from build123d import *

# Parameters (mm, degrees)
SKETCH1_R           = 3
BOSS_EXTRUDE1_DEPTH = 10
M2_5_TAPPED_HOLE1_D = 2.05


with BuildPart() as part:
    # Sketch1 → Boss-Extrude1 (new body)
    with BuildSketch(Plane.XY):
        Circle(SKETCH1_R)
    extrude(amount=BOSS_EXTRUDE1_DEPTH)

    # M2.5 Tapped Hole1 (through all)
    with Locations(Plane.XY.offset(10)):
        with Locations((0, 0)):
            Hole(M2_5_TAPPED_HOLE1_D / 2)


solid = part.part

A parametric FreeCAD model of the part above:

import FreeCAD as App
import Part
import Sketcher
from FreeCAD import Vector
Q = App.Units.Quantity

doc = App.newDocument("Part")
body = doc.addObject("PartDesign::Body", "Body")

sketch1 = body.newObject("Sketcher::SketchObject", "Sketch")
sketch1.AttachmentSupport = (doc.getObject("XY_Plane"), [""])
sketch1.MapMode = "FlatFace"
sketch1.addGeometry(Part.Circle(Vector(0, 0, 0), Vector(0, 0, 1), 3), False)
sketch1.addConstraint([
    Sketcher.Constraint("Coincident", 0, 3, -1, 1),
    Sketcher.Constraint("Diameter", 0, Q("6 mm")),
])
pad1 = body.newObject("PartDesign::Pad", "Pad")
pad1.Profile = sketch1
pad1.Length = 10

sketch2 = body.newObject("Sketcher::SketchObject", "Sketch001")
sketch2.AttachmentSupport = (doc.getObject("XY_Plane"), [""])
sketch2.MapMode = "FlatFace"
sketch2.AttachmentOffset = App.Placement(Vector(0, 0, 10), App.Rotation())
sketch2.addGeometry(Part.Circle(Vector(0, 0, 0), Vector(0, 0, 1), 1), False)
sketch2.addConstraint([
    Sketcher.Constraint("Coincident", 0, 3, -1, 1),
    Sketcher.Constraint("Diameter", 0, Q("2.05 mm")),
])
doc.recompute()
hole = body.newObject("PartDesign::Hole", "Hole")
hole.Profile = sketch2
hole.ThreadType = "None"
hole.Diameter = 2.05
hole.DepthType = "ThroughAll"

doc.recompute()
